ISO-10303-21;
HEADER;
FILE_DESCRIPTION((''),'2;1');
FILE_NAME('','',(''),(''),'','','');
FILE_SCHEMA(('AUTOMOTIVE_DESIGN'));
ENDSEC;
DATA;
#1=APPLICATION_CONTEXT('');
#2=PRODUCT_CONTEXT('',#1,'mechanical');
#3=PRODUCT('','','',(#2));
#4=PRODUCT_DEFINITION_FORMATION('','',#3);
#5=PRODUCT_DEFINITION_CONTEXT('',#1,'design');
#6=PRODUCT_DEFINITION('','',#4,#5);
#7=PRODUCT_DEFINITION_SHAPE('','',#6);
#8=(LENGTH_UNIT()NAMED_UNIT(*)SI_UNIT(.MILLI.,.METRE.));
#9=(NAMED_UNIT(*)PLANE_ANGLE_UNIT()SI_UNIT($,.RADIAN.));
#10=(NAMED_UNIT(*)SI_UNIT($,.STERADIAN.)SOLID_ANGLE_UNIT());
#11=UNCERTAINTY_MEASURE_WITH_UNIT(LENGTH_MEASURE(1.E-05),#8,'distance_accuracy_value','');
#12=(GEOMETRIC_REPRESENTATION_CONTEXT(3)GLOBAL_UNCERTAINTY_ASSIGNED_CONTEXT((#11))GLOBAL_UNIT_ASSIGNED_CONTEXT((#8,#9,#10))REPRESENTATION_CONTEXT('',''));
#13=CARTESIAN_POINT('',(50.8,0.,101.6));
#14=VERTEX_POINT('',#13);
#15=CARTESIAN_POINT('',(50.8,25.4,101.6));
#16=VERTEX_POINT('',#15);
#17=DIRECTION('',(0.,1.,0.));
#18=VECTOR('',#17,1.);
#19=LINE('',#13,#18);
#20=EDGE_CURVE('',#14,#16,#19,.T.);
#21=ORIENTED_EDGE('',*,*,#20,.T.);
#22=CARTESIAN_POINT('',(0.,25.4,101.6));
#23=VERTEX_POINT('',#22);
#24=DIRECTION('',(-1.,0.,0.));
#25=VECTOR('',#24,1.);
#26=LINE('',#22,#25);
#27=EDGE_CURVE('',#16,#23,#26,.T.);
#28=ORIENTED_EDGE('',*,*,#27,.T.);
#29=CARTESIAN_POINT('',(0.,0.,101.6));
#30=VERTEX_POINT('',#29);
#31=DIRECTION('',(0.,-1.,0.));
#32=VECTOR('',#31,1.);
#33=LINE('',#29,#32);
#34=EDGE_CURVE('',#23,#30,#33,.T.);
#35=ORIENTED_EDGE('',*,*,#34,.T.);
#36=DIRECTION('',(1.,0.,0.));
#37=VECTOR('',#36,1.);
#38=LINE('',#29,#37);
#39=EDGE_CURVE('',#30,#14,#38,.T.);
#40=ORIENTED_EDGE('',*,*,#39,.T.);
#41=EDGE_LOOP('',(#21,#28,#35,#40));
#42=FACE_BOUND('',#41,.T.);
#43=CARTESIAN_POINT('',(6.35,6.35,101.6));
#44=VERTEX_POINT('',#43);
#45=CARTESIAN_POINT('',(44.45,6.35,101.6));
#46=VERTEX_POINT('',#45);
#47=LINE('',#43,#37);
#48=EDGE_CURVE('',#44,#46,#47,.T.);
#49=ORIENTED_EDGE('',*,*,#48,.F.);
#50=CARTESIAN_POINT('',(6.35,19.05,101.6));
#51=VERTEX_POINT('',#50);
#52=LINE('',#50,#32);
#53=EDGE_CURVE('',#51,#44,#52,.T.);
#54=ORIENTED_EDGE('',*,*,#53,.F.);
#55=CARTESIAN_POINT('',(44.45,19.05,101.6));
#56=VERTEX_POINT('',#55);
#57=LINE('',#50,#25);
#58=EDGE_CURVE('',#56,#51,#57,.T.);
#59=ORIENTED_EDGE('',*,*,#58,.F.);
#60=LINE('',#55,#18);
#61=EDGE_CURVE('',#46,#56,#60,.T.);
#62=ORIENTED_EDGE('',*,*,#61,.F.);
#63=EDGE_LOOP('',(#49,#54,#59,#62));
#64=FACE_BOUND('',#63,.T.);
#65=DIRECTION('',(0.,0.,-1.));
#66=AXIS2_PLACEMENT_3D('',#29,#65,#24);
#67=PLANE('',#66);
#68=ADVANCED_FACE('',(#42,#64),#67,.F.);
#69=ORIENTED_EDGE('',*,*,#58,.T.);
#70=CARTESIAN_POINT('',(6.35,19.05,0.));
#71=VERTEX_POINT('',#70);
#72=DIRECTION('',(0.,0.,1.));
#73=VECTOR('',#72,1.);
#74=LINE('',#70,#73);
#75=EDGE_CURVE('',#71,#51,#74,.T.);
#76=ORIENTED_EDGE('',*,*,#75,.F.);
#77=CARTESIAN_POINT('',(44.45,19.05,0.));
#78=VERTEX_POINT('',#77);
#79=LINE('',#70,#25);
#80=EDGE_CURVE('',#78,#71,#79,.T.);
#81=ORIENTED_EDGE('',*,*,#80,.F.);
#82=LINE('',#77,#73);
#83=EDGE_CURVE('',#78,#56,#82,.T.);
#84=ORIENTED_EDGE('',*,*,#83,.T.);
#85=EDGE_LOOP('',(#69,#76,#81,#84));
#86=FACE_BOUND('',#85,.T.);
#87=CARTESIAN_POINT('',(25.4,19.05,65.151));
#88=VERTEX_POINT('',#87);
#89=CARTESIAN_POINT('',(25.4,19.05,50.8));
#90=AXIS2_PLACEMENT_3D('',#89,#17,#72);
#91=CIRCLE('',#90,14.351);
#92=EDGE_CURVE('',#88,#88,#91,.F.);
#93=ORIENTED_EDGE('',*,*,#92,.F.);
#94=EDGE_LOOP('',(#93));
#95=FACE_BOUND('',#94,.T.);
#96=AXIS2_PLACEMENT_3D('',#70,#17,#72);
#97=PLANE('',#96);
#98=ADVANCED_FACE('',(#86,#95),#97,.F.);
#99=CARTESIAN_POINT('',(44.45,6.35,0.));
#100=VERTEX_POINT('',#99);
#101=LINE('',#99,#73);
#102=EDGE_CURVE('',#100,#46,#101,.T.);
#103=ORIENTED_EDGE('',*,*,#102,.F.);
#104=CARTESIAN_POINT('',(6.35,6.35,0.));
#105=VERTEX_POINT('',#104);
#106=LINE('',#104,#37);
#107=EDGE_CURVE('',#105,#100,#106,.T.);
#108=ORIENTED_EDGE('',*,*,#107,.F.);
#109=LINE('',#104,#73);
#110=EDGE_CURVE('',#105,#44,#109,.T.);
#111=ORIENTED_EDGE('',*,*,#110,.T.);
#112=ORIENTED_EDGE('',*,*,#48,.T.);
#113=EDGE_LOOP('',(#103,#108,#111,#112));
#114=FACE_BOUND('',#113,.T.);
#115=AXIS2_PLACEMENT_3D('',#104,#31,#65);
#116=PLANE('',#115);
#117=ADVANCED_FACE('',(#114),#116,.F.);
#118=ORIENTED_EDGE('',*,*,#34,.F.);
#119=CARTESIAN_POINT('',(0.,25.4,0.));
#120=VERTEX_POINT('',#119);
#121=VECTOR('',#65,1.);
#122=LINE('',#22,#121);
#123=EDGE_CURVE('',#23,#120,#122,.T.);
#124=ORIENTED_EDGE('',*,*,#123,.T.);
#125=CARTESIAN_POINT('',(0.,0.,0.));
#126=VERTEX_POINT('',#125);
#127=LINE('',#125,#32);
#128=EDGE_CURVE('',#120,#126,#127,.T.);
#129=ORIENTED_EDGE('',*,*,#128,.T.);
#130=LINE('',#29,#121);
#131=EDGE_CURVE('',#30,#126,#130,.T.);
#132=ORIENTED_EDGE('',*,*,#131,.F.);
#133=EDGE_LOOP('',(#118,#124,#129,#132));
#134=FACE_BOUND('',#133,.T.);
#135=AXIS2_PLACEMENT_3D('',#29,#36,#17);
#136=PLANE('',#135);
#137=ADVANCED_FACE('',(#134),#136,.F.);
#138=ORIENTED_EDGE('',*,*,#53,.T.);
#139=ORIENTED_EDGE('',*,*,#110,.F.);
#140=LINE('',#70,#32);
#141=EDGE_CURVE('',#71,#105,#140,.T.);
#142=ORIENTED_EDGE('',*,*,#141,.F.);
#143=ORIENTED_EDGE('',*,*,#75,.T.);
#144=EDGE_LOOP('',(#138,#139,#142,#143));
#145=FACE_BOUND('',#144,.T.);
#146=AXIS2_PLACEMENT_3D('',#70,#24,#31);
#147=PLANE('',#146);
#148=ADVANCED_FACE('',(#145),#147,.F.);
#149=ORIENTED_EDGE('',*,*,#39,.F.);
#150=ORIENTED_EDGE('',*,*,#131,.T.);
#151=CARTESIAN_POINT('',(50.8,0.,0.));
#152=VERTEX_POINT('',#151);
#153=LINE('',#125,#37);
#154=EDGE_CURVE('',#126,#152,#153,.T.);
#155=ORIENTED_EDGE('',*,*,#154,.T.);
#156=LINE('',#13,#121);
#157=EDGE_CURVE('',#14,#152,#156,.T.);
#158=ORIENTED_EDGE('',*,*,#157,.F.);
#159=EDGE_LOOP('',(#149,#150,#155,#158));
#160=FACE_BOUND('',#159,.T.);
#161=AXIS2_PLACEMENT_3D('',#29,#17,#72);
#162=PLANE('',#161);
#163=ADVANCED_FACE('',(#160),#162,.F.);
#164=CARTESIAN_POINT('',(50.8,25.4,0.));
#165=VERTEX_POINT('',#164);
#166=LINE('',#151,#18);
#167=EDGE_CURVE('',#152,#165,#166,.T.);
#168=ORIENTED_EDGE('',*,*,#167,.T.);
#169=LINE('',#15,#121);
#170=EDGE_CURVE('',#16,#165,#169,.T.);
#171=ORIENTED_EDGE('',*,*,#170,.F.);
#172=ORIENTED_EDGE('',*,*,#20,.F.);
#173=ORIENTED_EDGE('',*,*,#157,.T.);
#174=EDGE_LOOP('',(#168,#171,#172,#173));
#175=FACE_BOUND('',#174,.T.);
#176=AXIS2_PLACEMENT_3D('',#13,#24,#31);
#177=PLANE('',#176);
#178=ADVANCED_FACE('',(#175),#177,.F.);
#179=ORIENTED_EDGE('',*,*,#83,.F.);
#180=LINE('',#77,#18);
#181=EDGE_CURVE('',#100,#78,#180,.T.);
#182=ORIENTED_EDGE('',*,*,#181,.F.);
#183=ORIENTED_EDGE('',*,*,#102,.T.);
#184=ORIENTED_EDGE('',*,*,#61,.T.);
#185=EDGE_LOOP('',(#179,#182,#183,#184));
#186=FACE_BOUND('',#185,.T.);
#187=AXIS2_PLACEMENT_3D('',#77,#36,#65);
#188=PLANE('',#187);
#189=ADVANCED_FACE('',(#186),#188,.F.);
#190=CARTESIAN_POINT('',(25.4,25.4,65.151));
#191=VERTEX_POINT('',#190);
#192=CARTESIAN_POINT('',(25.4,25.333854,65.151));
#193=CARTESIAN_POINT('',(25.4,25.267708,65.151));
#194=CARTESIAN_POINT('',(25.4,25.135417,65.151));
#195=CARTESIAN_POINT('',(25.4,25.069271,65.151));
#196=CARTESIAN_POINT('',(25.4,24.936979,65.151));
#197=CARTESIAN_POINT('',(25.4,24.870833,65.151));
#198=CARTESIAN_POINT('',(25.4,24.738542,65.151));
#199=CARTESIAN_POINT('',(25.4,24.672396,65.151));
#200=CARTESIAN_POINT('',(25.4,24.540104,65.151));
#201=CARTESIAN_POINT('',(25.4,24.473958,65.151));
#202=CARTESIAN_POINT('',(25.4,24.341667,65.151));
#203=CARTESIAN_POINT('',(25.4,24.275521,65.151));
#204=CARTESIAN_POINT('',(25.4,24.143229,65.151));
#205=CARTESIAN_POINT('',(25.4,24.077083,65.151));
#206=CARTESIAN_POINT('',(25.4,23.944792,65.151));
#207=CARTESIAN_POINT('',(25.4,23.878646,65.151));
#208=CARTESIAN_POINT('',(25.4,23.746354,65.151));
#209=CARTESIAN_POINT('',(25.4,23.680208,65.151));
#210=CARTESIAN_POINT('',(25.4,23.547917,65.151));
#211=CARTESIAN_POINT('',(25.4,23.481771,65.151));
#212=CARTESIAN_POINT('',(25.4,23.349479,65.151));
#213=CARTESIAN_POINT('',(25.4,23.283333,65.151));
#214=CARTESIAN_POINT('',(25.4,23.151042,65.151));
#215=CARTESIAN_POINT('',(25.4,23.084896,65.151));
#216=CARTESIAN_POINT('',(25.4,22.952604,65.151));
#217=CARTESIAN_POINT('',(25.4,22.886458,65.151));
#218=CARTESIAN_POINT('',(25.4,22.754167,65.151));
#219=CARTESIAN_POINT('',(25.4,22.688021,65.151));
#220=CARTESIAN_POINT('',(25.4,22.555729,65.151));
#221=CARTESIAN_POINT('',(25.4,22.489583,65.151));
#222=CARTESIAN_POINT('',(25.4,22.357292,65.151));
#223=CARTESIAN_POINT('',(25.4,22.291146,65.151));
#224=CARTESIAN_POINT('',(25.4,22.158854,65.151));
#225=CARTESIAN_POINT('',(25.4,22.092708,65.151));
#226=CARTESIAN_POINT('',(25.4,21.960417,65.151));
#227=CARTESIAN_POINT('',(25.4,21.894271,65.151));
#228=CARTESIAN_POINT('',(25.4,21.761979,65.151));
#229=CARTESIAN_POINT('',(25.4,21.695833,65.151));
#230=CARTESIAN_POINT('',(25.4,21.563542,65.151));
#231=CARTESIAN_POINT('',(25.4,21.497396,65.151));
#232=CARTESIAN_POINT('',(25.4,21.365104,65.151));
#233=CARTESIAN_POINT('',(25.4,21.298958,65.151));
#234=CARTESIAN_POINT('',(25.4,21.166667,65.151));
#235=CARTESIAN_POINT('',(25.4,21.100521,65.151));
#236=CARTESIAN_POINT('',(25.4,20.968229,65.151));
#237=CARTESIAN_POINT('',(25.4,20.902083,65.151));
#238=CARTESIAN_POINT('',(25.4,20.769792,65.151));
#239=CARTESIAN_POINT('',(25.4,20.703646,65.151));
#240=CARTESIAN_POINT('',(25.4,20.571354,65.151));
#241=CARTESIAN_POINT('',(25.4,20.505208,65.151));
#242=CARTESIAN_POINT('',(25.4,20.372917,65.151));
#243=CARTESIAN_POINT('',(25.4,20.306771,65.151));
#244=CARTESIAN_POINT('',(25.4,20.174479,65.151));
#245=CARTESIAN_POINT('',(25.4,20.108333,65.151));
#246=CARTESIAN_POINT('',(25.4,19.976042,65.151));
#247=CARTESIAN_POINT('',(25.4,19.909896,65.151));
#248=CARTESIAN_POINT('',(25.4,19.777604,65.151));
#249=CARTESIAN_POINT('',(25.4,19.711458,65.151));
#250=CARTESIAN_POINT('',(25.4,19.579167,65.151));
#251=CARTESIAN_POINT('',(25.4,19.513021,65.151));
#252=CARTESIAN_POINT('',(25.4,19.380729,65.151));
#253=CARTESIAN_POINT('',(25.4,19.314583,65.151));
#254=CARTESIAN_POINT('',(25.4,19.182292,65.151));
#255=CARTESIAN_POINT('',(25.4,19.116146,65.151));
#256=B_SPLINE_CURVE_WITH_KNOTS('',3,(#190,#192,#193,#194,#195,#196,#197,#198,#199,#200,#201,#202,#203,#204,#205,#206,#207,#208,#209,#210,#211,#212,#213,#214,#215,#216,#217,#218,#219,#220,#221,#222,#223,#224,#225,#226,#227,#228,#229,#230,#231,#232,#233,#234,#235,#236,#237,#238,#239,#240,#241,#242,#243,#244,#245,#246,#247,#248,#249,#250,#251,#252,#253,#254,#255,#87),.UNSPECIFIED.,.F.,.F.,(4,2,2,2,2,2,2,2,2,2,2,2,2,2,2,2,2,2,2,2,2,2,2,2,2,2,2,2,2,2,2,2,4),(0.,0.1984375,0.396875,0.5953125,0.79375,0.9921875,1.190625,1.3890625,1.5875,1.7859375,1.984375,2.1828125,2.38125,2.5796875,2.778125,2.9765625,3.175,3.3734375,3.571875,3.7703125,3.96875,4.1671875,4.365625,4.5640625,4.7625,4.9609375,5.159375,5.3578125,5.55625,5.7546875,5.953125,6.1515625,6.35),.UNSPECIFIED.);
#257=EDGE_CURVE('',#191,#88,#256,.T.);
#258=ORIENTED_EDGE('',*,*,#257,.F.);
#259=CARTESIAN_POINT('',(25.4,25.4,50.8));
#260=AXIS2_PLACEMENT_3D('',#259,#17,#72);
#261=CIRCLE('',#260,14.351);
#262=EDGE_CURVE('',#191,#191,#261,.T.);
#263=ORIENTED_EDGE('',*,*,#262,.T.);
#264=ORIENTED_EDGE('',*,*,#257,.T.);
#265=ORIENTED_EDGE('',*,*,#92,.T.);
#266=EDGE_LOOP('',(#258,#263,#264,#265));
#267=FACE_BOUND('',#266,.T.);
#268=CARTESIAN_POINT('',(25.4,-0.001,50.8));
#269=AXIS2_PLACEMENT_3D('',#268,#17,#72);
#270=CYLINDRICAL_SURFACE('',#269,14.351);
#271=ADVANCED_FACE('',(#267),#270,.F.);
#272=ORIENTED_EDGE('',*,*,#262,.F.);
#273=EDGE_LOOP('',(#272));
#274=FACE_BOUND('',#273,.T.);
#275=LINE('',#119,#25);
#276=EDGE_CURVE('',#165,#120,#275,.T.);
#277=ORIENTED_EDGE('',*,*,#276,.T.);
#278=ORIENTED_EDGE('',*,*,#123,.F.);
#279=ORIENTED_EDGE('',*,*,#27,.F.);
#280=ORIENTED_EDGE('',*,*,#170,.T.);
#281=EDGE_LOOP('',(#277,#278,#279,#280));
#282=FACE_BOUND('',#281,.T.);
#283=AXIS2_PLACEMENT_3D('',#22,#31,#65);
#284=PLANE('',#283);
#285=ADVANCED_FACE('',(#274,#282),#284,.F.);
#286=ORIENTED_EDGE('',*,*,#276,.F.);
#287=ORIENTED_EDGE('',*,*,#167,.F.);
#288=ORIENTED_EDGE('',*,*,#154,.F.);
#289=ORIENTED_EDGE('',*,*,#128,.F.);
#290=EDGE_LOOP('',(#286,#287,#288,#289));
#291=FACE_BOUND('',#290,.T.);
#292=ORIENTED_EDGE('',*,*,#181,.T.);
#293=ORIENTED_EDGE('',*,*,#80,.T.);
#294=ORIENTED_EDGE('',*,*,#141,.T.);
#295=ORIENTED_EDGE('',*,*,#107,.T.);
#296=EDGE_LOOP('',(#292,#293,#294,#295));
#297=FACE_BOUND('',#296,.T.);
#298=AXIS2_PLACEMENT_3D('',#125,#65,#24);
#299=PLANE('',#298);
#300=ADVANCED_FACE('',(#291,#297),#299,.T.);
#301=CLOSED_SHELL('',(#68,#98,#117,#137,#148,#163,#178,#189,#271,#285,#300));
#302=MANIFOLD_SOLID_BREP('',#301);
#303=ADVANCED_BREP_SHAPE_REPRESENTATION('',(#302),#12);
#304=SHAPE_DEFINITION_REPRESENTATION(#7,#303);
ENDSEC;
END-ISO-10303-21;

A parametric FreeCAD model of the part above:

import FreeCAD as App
import Part
import Sketcher
Q = App.Units.Quantity

doc = App.newDocument("Part")
body = doc.addObject("PartDesign::Body", "Body")

sketch1 = body.newObject("Sketcher::SketchObject", "Sketch")
sketch1.AttachmentSupport = (doc.getObject("XY_Plane"), [""])
sketch1.MapMode = "FlatFace"
sketch1.addGeometry([
    Part.LineSegment(App.Vector(0, 25, 0), App.Vector(0, 0, 0)),
    Part.LineSegment(App.Vector(0, 0, 0), App.Vector(51, 0, 0)),
    Part.LineSegment(App.Vector(51, 0, 0), App.Vector(51, 25, 0)),
    Part.LineSegment(App.Vector(51, 25, 0), App.Vector(0, 25, 0)),
], False)
sketch1.addConstraint([
    Sketcher.Constraint("Coincident", 0, 2, 1, 1),
    Sketcher.Constraint("Coincident", 1, 2, 2, 1),
    Sketcher.Constraint("Coincident", 2, 2, 3, 1),
    Sketcher.Constraint("Coincident", 3, 2, 0, 1),
    Sketcher.Constraint("Vertical", 0),
    Sketcher.Constraint("Horizontal", 1),
    Sketcher.Constraint("Vertical", 2),
    Sketcher.Constraint("Horizontal", 3),
    Sketcher.Constraint("Coincident", 0, 2, -1, 1),
    Sketcher.Constraint("DistanceX", 1, 1, 1, 2, Q("2 in")),
    Sketcher.Constraint("DistanceY", 0, 2, 0, 1, Q("1 in")),
])
pad1 = body.newObject("PartDesign::Pad", "Pad")
pad1.Profile = sketch1
pad1.Length = Q("4 in")

sketch2 = body.newObject("Sketcher::SketchObject", "Sketch001")
sketch2.AttachmentSupport = (doc.getObject("XY_Plane"), [""])
sketch2.MapMode = "FlatFace"
sketch2.AttachmentOffset = App.Placement(App.Vector(0, 0, 4 * 25.4), App.Rotation())
sketch2.addGeometry([
    Part.LineSegment(App.Vector(6, 19, 0), App.Vector(6, 6, 0)),
    Part.LineSegment(App.Vector(6, 6, 0), App.Vector(44, 6, 0)),
    Part.LineSegment(App.Vector(44, 6, 0), App.Vector(44, 19, 0)),
    Part.LineSegment(App.Vector(44, 19, 0), App.Vector(6, 19, 0)),
], False)
sketch2.addConstraint([
    Sketcher.Constraint("Coincident", 0, 2, 1, 1),
    Sketcher.Constraint("Coincident", 1, 2, 2, 1),
    Sketcher.Constraint("Coincident", 2, 2, 3, 1),
    Sketcher.Constraint("Coincident", 3, 2, 0, 1),
    Sketcher.Constraint("Vertical", 0),
    Sketcher.Constraint("Horizontal", 1),
    Sketcher.Constraint("Vertical", 2),
    Sketcher.Constraint("Horizontal", 3),
    Sketcher.Constraint("DistanceX", 1, 1, 1, 2, Q("1.5 in")),
    Sketcher.Constraint("DistanceY", 0, 2, 0, 1, Q("0.5 in")),
    Sketcher.Constraint("DistanceX", -1, 1, 0, 2, Q("0.25 in")),
    Sketcher.Constraint("DistanceY", -1, 1, 0, 2, Q("0.25 in")),
])
pocket1 = body.newObject("PartDesign::Pocket", "Pocket")
pocket1.Profile = sketch2
pocket1.Type = "ThroughAll"

sketch3 = body.newObject("Sketcher::SketchObject", "Sketch002")
sketch3.AttachmentSupport = (doc.getObject("XZ_Plane"), [""])
sketch3.MapMode = "FlatFace"
sketch3.AttachmentOffset = App.Placement(App.Vector(0, 0, -1 * 25.4), App.Rotation())
sketch3.addGeometry(Part.Circle(App.Vector(25, 51, 0), App.Vector(0, 0, 1), 14), False)
sketch3.addConstraint([
    Sketcher.Constraint("Diameter", 0, Q("1.13 in")),
    Sketcher.Constraint("DistanceX", -1, 1, 0, 3, Q("1 in")),
    Sketcher.Constraint("DistanceY", -1, 1, 0, 3, Q("2 in")),
])
pocket2 = body.newObject("PartDesign::Pocket", "Pocket001")
pocket2.Profile = sketch3
pocket2.Type = "UpToFirst"
pocket2.Reversed = True

doc.recompute()
